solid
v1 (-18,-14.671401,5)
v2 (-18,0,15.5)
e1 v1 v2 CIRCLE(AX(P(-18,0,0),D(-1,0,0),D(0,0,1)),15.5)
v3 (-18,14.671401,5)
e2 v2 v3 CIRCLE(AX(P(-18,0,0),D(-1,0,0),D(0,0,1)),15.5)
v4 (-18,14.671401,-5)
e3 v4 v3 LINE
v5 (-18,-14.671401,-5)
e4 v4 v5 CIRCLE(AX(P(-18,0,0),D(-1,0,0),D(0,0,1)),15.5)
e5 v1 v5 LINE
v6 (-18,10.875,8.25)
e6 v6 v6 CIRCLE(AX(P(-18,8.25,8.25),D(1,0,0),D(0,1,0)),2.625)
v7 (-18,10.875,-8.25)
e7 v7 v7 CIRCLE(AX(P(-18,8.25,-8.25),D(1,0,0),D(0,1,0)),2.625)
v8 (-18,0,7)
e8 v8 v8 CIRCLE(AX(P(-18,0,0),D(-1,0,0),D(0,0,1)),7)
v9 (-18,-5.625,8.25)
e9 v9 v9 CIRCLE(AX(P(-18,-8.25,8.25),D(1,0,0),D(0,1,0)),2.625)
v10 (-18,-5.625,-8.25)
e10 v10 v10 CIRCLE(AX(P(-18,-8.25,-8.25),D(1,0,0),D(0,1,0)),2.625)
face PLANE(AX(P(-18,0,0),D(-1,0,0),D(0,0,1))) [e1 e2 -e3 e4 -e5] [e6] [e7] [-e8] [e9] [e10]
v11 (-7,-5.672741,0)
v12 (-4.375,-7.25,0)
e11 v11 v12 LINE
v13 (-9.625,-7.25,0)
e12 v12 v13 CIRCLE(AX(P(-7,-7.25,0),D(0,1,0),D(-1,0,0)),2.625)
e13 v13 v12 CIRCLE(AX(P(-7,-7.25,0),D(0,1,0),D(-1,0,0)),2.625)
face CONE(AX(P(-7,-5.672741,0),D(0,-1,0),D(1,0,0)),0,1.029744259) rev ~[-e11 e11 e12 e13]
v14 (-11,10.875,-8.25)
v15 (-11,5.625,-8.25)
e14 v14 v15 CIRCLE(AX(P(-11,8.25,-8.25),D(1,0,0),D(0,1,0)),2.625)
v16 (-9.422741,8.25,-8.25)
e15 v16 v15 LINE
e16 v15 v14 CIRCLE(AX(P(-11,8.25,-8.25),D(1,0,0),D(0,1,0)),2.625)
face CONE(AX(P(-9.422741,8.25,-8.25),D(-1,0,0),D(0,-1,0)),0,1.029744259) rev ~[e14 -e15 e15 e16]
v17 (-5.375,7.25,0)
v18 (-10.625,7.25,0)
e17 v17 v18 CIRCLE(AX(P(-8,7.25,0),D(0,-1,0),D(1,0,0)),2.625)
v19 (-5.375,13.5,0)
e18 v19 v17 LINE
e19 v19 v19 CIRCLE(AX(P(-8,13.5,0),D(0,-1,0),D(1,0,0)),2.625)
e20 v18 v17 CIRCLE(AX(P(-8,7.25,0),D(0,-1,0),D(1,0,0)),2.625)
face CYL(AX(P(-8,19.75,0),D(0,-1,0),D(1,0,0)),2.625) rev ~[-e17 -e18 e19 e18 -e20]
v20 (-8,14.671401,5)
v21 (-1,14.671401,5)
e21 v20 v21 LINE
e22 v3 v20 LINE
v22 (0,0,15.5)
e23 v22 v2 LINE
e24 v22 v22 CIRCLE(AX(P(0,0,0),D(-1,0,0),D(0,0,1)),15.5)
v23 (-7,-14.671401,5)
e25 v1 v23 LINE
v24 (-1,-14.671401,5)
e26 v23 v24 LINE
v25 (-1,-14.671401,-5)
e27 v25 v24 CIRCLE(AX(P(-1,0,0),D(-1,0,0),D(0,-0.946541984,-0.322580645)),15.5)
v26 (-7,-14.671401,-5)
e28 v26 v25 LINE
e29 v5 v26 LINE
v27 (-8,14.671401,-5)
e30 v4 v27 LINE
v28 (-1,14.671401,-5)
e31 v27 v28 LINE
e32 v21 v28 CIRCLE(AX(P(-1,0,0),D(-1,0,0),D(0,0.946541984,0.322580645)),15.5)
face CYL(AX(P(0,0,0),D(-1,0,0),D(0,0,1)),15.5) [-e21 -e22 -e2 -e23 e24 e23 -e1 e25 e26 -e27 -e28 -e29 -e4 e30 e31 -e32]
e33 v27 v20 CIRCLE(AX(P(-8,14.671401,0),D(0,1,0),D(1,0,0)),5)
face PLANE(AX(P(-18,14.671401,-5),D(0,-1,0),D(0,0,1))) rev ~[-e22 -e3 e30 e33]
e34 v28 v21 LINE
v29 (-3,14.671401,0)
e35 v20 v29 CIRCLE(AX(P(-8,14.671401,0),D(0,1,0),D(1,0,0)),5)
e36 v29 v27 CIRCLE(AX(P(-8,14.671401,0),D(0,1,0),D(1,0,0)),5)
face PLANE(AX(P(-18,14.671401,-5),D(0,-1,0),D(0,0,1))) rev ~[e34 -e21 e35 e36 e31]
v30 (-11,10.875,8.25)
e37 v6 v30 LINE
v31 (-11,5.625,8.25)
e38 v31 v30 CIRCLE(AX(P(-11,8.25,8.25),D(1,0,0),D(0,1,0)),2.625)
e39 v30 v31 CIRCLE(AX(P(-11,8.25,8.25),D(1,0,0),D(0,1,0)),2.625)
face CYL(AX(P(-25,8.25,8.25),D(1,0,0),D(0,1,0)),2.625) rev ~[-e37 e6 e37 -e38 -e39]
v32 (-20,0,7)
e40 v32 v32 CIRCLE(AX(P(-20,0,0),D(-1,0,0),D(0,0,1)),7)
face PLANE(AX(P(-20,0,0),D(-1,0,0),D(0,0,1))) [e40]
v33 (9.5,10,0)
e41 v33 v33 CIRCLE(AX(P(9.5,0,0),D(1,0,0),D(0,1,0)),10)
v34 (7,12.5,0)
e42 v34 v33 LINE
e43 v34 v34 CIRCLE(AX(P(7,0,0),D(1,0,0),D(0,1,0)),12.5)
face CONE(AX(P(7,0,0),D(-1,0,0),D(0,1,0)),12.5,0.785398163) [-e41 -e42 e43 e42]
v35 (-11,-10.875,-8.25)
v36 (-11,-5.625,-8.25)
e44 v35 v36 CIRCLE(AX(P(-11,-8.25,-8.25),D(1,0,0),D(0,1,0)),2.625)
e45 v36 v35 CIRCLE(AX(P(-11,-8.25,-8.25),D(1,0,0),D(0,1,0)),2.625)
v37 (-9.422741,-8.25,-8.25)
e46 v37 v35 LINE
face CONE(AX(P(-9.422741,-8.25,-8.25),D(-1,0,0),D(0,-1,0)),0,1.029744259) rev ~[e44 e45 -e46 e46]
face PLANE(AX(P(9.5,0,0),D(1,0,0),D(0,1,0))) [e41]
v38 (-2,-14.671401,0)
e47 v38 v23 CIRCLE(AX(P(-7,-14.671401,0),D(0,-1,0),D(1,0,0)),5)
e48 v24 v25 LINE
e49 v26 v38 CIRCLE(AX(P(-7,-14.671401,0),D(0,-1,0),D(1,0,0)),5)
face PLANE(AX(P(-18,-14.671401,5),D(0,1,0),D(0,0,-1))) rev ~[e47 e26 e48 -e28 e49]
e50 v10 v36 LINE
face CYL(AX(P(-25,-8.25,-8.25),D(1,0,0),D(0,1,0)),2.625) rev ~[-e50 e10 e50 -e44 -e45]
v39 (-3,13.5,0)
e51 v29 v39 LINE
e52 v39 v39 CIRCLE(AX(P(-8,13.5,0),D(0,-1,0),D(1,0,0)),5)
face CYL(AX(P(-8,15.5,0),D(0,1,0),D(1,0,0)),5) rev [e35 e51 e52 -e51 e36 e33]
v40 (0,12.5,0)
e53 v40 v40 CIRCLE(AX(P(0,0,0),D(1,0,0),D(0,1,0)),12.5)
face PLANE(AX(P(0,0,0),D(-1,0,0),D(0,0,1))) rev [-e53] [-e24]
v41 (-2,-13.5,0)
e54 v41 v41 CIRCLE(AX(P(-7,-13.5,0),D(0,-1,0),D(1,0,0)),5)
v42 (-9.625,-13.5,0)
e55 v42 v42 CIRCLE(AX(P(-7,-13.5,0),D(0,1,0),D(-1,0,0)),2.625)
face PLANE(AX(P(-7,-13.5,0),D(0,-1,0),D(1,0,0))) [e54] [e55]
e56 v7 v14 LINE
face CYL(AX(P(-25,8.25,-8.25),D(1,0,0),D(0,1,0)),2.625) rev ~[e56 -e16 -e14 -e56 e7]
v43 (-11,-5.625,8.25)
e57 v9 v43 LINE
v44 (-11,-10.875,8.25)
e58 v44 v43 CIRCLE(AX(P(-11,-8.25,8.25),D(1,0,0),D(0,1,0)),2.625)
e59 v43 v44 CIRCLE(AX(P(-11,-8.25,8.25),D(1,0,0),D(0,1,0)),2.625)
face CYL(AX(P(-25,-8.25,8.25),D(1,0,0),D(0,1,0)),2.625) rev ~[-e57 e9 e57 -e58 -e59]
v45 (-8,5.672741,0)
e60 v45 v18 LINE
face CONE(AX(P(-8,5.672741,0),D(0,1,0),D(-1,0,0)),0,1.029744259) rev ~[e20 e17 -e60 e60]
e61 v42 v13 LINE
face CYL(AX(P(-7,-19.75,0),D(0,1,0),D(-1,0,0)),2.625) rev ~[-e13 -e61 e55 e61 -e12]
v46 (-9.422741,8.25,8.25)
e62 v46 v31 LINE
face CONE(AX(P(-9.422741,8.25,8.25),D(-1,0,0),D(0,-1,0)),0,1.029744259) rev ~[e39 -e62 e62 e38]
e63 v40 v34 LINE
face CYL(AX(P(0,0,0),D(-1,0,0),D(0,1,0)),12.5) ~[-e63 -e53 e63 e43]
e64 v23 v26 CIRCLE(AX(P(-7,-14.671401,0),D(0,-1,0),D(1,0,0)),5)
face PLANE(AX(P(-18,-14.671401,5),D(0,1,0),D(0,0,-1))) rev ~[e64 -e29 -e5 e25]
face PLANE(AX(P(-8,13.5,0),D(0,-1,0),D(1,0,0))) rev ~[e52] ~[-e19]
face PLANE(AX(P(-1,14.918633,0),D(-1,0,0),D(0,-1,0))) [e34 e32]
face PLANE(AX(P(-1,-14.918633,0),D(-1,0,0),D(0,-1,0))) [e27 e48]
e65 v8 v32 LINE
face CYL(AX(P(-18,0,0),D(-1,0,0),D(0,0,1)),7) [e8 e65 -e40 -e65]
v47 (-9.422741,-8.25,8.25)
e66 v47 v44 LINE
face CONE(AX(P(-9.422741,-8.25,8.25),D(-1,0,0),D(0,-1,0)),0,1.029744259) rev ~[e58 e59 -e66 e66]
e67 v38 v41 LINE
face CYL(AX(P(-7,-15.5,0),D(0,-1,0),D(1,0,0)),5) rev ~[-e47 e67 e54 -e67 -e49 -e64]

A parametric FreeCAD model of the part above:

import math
import FreeCAD as App
import Part
import Sketcher
from FreeCAD import Vector
Q = App.Units.Quantity


def edges_at(feature, points):
    """Names of the edges that pass closest to the given points."""
    edges = feature.Shape.Edges
    near = lambda p: min(range(len(edges)), key=lambda i: edges[i].distToShape(Part.Vertex(*p))[0])
    return sorted({f"Edge{near(p) + 1}" for p in points})


def add_polygon(sketch, points):
    """Adds a closed chain of lines whose ends are joined by coincident constraints."""
    first, n = sketch.GeometryCount, len(points)
    for a, b in zip(points, points[1:] + points[:1]):
        sketch.addGeometry(Part.LineSegment(App.Vector(*a, 0), App.Vector(*b, 0)), False)
    for i in range(n):
        sketch.addConstraint(Sketcher.Constraint("Coincident", first + i, 2, first + (i + 1) % n, 1))

doc = App.newDocument("Part")
body = doc.addObject("PartDesign::Body", "Body")

sketch1 = body.newObject("Sketcher::SketchObject", "Sketch")
sketch1.AttachmentSupport = (doc.getObject("XZ_Plane"), [""])
sketch1.MapMode = "FlatFace"
add_polygon(sketch1, [(0, 0), (0, 15.5), (-18, 15.5), (-18, 7), (-20, 7), (-20, 0)])
sketch1.addConstraint(Sketcher.Constraint("Vertical", 0))
sketch1.addConstraint(Sketcher.Constraint("Horizontal", 1))
sketch1.addConstraint(Sketcher.Constraint("Vertical", 2))
sketch1.addConstraint(Sketcher.Constraint("Horizontal", 3))
sketch1.addConstraint(Sketcher.Constraint("Vertical", 4))
sketch1.addConstraint(Sketcher.Constraint("Horizontal", 5))
sketch1.addConstraint(Sketcher.Constraint("Coincident", 5, 2, -1, 1))
sketch1.addConstraint(Sketcher.Constraint("DistanceX", 1, 2, 1, 1, Q("18 mm")))
sketch1.addConstraint(Sketcher.Constraint("DistanceX", 3, 2, 3, 1, Q("2 mm")))
sketch1.addConstraint(Sketcher.Constraint("DistanceY", 4, 2, 4, 1, Q("7 mm")))
sketch1.addConstraint(Sketcher.Constraint("DistanceY", 0, 1, 0, 2, Q("15.5 mm")))
revolution = body.newObject("PartDesign::Revolution", "Revolution")
revolution.Profile = sketch1
revolution.ReferenceAxis = (sketch1, ["H_Axis"])
revolution.Angle = 360

sketch2 = body.newObject("Sketcher::SketchObject", "Sketch001")
sketch2.AttachmentSupport = (doc.getObject("YZ_Plane"), [""])
sketch2.MapMode = "FlatFace"
sketch2.AttachmentOffset = App.Placement(Vector(0, 0, -18), App.Rotation())
sketch2.addGeometry(Part.Circle(Vector(-8.2, 8.2, 0), Vector(0, 0, 1), 1.5), False)
sketch2.addGeometry(Part.Circle(Vector(8.2, 8.2, 0), Vector(0, 0, 1), 1.5), False)
sketch2.addGeometry(Part.Circle(Vector(8.2, -8.2, 0), Vector(0, 0, 1), 1.5), False)
sketch2.addGeometry(Part.Circle(Vector(-8.2, -8.2, 0), Vector(0, 0, 1), 1.5), False)
sketch2.addConstraint(Sketcher.Constraint("Equal", 0, 1))
sketch2.addConstraint(Sketcher.Constraint("Equal", 1, 2))
sketch2.addConstraint(Sketcher.Constraint("Equal", 2, 3))
sketch2.addConstraint(Sketcher.Constraint("Symmetric", 0, 3, 2, 3, -1, 1))
sketch2.addConstraint(Sketcher.Constraint("Symmetric", 1, 3, 3, 3, -1, 1))
sketch2.addConstraint(Sketcher.Constraint("Symmetric", 0, 3, 1, 3, -2))
sketch2.addConstraint(Sketcher.Constraint("Diameter", 0, Q("3 mm")))
sketch2.addConstraint(Sketcher.Constraint("DistanceX", 0, 3, 1, 3, Q("16.5 mm")))
sketch2.addConstraint(Sketcher.Constraint("DistanceY", 2, 3, 1, 3, Q("16.5 mm")))
pocket1 = body.newObject("PartDesign::Pocket", "Pocket")
pocket1.Profile = sketch2
pocket1.Length = 5
pocket1.Reversed = True

sketch3 = body.newObject("Sketcher::SketchObject", "Sketch002")
sketch3.AttachmentSupport = (doc.getObject("YZ_Plane"), [""])
sketch3.MapMode = "FlatFace"
sketch3.AttachmentOffset = App.Placement(Vector(0, 0, -18), App.Rotation())
sketch3.addGeometry(Part.Circle(Vector(8.2, 8.2, 0), Vector(0, 0, 1), 2.6), False)
sketch3.addGeometry(Part.Circle(Vector(-8.2, 8.2, 0), Vector(0, 0, 1), 2.6), False)
sketch3.addGeometry(Part.Circle(Vector(8.2, -8.2, 0), Vector(0, 0, 1), 2.6), False)
sketch3.addGeometry(Part.Circle(Vector(-8.2, -8.2, 0), Vector(0, 0, 1), 2.6), False)
sketch3.addConstraint(Sketcher.Constraint("Equal", 0, 1))
sketch3.addConstraint(Sketcher.Constraint("Equal", 1, 2))
sketch3.addConstraint(Sketcher.Constraint("Equal", 2, 3))
sketch3.addConstraint(Sketcher.Constraint("Symmetric", 1, 3, 2, 3, -1, 1))
sketch3.addConstraint(Sketcher.Constraint("Symmetric", 0, 3, 3, 3, -1, 1))
sketch3.addConstraint(Sketcher.Constraint("Symmetric", 0, 3, 1, 3, -2))
sketch3.addConstraint(Sketcher.Constraint("Diameter", 0, Q("5.25 mm")))
sketch3.addConstraint(Sketcher.Constraint("DistanceX", 1, 3, 0, 3, Q("16.5 mm")))
sketch3.addConstraint(Sketcher.Constraint("DistanceY", 2, 3, 0, 3, Q("16.5 mm")))
doc.recompute()
hole = body.newObject("PartDesign::Hole", "Hole")
hole.Profile = sketch3
hole.ThreadType = "None"
hole.Diameter = 5.25
hole.DepthType = "Dimension"
hole.Depth = 7
hole.DrillPoint = "Angled"
hole.DrillPointAngle = 118
hole.Reversed = True

sketch4 = body.newObject("Sketcher::SketchObject", "Sketch003")
sketch4.AttachmentSupport = (doc.getObject("XZ_Plane"), [""])
sketch4.MapMode = "FlatFace"
sketch4.AttachmentOffset = App.Placement(Vector(0, 0, 15.5), App.Rotation())
sketch4.addGeometry(Part.Circle(Vector(-7, 0, 0), Vector(0, 0, 1), 5), False)
sketch4.addConstraint(Sketcher.Constraint("PointOnObject", 0, 3, -1))
sketch4.addConstraint(Sketcher.Constraint("Diameter", 0, Q("10 mm")))
sketch4.addConstraint(Sketcher.Constraint("DistanceX", 0, 3, -1, 1, Q("7 mm")))
pocket2 = body.newObject("PartDesign::Pocket", "Pocket001")
pocket2.Profile = sketch4
pocket2.Length = 2

sketch5 = body.newObject("Sketcher::SketchObject", "Sketch004")
sketch5.AttachmentSupport = (doc.getObject("XZ_Plane"), [""])
sketch5.MapMode = "FlatFace"
sketch5.AttachmentOffset = App.Placement(Vector(0, 0, 13.5), App.Rotation())
sketch5.addGeometry(Part.Circle(Vector(-7, 0, 0), Vector(0, 0, 1), 2.6), False)
sketch5.addConstraint(Sketcher.Constraint("PointOnObject", 0, 3, -1))
sketch5.addConstraint(Sketcher.Constraint("Diameter", 0, Q("5.25 mm")))
sketch5.addConstraint(Sketcher.Constraint("DistanceX", 0, 3, -1, 1, Q("7 mm")))
doc.recompute()
hole2 = body.newObject("PartDesign::Hole", "Hole001")
hole2.Profile = sketch5
hole2.ThreadType = "None"
hole2.Diameter = 5.25
hole2.DepthType = "Dimension"
hole2.Depth = 6.25
hole2.DrillPoint = "Angled"
hole2.DrillPointAngle = 118

sketch6 = body.newObject("Sketcher::SketchObject", "Sketch005")
sketch6.AttachmentSupport = (doc.getObject("XZ_Plane"), [""])
sketch6.MapMode = "FlatFace"
sketch6.AttachmentOffset = App.Placement(Vector(0, 0, -15.5), App.Rotation())
sketch6.addGeometry(Part.Circle(Vector(-8, 0, 0), Vector(0, 0, 1), 5), False)
sketch6.addConstraint(Sketcher.Constraint("PointOnObject", 0, 3, -1))
sketch6.addConstraint(Sketcher.Constraint("Diameter", 0, Q("10 mm")))
sketch6.addConstraint(Sketcher.Constraint("DistanceX", 0, 3, -1, 1, Q("8 mm")))
pocket3 = body.newObject("PartDesign::Pocket", "Pocket002")
pocket3.Profile = sketch6
pocket3.Length = 2
pocket3.Reversed = True

sketch7 = body.newObject("Sketcher::SketchObject", "Sketch006")
sketch7.AttachmentSupport = (doc.getObject("XZ_Plane"), [""])
sketch7.MapMode = "FlatFace"
sketch7.AttachmentOffset = App.Placement(Vector(0, 0, -13.5), App.Rotation())
sketch7.addGeometry(Part.Circle(Vector(-8, 0, 0), Vector(0, 0, 1), 2.6), False)
sketch7.addConstraint(Sketcher.Constraint("PointOnObject", 0, 3, -1))
sketch7.addConstraint(Sketcher.Constraint("Diameter", 0, Q("5.25 mm")))
sketch7.addConstraint(Sketcher.Constraint("DistanceX", 0, 3, -1, 1, Q("8 mm")))
doc.recompute()
hole3 = body.newObject("PartDesign::Hole", "Hole002")
hole3.Profile = sketch7
hole3.ThreadType = "None"
hole3.Diameter = 5.25
hole3.DepthType = "Dimension"
hole3.Depth = 6.25
hole3.DrillPoint = "Angled"
hole3.DrillPointAngle = 118
hole3.Reversed = True

sketch8 = body.newObject("Sketcher::SketchObject", "Sketch007")
sketch8.AttachmentSupport = (doc.getObject("YZ_Plane"), [""])
sketch8.MapMode = "FlatFace"
sketch8.addGeometry(Part.Circle(Vector(0, 0, 0), Vector(0, 0, 1), 12), False)
sketch8.addConstraint(Sketcher.Constraint("Coincident", 0, 3, -1, 1))
sketch8.addConstraint(Sketcher.Constraint("Diameter", 0, Q("25 mm")))
pad1 = body.newObject("PartDesign::Pad", "Pad")
pad1.Profile = sketch8
pad1.Length = 9.5
doc.recompute()

chamfer = body.newObject("PartDesign::Chamfer", "Chamfer")
chamfer.Base = (pad1, edges_at(pad1, [(9.5, -12.5, 0)]))
chamfer.Size = 2.5

sketch9 = body.newObject("Sketcher::SketchObject", "Sketch008")
sketch9.AttachmentSupport = (doc.getObject("YZ_Plane"), [""])
sketch9.MapMode = "FlatFace"
sketch9.AttachmentOffset = App.Placement(Vector(0, 0, -18), App.Rotation())
sketch9.addGeometry(Part.LineSegment(Vector(15, -5, 0), Vector(15, 5, 0)), False)
sketch9.addGeometry(Part.ArcOfCircle(Part.Circle(Vector(0, 0, 0), Vector(0, 0, 1), 16), math.radians(-19), math.radians(19)), False)
sketch9.addGeometry(Part.ArcOfCircle(Part.Circle(Vector(0, 0, 0), Vector(0, 0, 1), 16), math.radians(161), math.radians(199)), False)
sketch9.addGeometry(Part.LineSegment(Vector(-15, 5, 0), Vector(-15, -5, 0)), False)
sketch9.addConstraint(Sketcher.Constraint("Coincident", 0, 1, 1, 1))
sketch9.addConstraint(Sketcher.Constraint("Coincident", 1, 2, 0, 2))
sketch9.addConstraint(Sketcher.Constraint("Coincident", 2, 1, 3, 1))
sketch9.addConstraint(Sketcher.Constraint("Coincident", 3, 2, 2, 2))
sketch9.addConstraint(Sketcher.Constraint("Vertical", 0))
sketch9.addConstraint(Sketcher.Constraint("Vertical", 3))
sketch9.addConstraint(Sketcher.Constraint("Coincident", 1, 3, -1, 1))
sketch9.addConstraint(Sketcher.Constraint("Coincident", 2, 3, -1, 1))
sketch9.addConstraint(Sketcher.Constraint("Equal", 1, 2))
sketch9.addConstraint(Sketcher.Constraint("Horizontal", 1, 2, 2, 1))
sketch9.addConstraint(Sketcher.Constraint("Radius", 1, Q("15.5 mm")))
sketch9.addConstraint(Sketcher.Constraint("DistanceY", 0, 1, 0, 2, Q("10 mm")))
pocket4 = body.newObject("PartDesign::Pocket", "Pocket003")
pocket4.Profile = sketch9
pocket4.Length = 17
pocket4.Reversed = True

doc.recompute()
